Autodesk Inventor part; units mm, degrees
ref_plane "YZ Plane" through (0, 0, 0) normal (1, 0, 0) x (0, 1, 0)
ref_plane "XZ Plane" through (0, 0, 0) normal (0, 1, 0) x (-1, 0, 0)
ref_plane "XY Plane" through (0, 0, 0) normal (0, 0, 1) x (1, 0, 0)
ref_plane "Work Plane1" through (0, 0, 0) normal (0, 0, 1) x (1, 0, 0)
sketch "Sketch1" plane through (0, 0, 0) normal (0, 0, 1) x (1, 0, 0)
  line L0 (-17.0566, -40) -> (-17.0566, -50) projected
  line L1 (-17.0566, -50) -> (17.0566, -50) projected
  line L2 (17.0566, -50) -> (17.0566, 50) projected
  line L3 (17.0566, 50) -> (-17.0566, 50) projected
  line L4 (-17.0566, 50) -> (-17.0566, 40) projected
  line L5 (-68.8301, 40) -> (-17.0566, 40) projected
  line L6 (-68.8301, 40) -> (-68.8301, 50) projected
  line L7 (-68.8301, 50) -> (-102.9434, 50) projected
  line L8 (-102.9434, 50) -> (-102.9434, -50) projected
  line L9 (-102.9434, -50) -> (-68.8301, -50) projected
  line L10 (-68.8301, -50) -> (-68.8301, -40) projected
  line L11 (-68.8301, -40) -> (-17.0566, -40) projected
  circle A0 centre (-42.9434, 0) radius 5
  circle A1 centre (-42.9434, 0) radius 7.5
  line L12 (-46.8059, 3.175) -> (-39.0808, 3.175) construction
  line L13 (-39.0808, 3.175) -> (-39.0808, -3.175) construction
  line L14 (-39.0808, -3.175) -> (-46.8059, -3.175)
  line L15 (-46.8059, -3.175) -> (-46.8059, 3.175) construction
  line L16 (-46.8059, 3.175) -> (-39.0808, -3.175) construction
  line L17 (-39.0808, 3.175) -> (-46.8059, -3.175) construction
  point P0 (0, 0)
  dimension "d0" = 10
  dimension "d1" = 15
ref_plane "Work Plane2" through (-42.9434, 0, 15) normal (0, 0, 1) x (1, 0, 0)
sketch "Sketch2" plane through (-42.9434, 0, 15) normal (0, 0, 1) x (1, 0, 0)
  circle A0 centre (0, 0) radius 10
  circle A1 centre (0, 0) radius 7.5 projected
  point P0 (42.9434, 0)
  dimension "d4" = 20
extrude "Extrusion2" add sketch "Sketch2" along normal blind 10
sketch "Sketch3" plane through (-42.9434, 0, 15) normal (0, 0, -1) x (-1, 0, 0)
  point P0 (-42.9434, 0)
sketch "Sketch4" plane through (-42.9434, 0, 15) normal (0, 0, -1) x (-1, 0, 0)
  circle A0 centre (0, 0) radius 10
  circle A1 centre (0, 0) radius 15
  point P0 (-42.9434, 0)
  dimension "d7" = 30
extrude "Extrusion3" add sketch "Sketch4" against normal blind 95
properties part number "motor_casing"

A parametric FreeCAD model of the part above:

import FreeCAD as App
import Part
import Sketcher

V = App.Vector
Q = App.Units.Quantity

doc = App.newDocument("Part")
body = doc.addObject("PartDesign::Body", "Body")

# Sketch on XY plane
sketch1 = body.newObject("Sketcher::SketchObject", "Sketch")
sketch1.AttachmentSupport = (doc.getObject("XY_Plane"), [""])
sketch1.MapMode = "FlatFace"
sketch1.AttachmentOffset = App.Placement(V(0, 0, 15), App.Rotation())
sketch1.addGeometry([
    Part.Circle(V(-42.9434, 0, 0), V(0, 0, 1), 10),
    Part.Circle(V(-42.9434, 0, 0), V(0, 0, 1), 7.5),
], False)
sketch1.addConstraint([
    Sketcher.Constraint("Coincident", 1, 3, 0, 3),
    Sketcher.Constraint("PointOnObject", 0, 3, -1),
    Sketcher.Constraint("Diameter", 0, Q("20 mm")),
    Sketcher.Constraint("Diameter", 1, Q("15 mm")),
    Sketcher.Constraint("DistanceX", 0, 3, -1, 1, Q("42.9434 mm")),
])
pad1 = body.newObject("PartDesign::Pad", "Pad")
pad1.Profile = sketch1
pad1.Length = 10

# Sketch on XY plane
sketch2 = body.newObject("Sketcher::SketchObject", "Sketch001")
sketch2.AttachmentSupport = (doc.getObject("XY_Plane"), [""])
sketch2.MapMode = "FlatFace"
sketch2.AttachmentOffset = App.Placement(V(0, 0, 15), App.Rotation())
sketch2.addGeometry([
    Part.Circle(V(-42.9434, 0, 0), V(0, 0, 1), 15),
    Part.Circle(V(-42.9434, 0, 0), V(0, 0, 1), 10),
], False)
sketch2.addConstraint([
    Sketcher.Constraint("Coincident", 1, 3, 0, 3),
    Sketcher.Constraint("PointOnObject", 0, 3, -1),
    Sketcher.Constraint("Diameter", 0, Q("30 mm")),
    Sketcher.Constraint("Diameter", 1, Q("20 mm")),
    Sketcher.Constraint("DistanceX", 0, 3, -1, 1, Q("42.9434 mm")),
])
pad2 = body.newObject("PartDesign::Pad", "Pad001")
pad2.Profile = sketch2
pad2.Length = 95

doc.recompute()
